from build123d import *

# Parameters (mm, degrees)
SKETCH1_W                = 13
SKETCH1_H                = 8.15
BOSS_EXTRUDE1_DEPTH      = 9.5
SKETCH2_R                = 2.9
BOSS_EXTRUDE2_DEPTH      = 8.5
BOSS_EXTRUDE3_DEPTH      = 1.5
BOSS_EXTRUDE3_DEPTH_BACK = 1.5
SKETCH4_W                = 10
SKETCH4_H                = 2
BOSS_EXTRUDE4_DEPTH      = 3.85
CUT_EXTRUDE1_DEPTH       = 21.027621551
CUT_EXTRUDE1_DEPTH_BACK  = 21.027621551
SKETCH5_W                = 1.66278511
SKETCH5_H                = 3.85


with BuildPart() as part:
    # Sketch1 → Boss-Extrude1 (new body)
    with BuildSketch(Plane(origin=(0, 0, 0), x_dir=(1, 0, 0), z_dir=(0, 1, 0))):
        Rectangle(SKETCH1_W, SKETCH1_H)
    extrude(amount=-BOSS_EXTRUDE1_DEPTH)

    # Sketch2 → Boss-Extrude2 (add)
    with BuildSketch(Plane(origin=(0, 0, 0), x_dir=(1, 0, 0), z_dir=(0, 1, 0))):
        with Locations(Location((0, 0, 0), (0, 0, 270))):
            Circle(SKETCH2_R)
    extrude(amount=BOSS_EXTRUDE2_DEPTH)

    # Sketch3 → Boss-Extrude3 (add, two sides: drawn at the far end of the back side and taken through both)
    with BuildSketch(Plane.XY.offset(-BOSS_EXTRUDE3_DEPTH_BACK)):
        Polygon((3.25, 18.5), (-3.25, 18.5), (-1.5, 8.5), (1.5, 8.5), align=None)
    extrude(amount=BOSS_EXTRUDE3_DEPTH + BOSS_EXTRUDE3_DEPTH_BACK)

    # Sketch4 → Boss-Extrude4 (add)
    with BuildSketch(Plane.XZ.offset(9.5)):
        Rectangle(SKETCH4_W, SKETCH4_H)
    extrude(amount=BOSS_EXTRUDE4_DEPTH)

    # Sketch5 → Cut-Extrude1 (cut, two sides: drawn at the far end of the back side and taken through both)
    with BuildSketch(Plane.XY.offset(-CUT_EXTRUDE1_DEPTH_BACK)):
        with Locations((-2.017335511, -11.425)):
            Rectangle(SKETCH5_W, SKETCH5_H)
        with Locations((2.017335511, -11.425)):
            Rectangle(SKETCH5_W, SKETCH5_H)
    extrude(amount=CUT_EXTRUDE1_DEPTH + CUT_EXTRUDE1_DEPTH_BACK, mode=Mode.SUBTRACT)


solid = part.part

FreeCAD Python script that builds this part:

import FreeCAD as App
import Part
import Sketcher

V = App.Vector
Q = App.Units.Quantity


def add_polygon(sketch, points):
    """Adds a closed chain of lines whose ends are joined by coincident constraints."""
    first, n = sketch.GeometryCount, len(points)
    for a, b in zip(points, points[1:] + points[:1]):
        sketch.addGeometry(Part.LineSegment(App.Vector(*a, 0), App.Vector(*b, 0)), False)
    for i in range(n):
        sketch.addConstraint(Sketcher.Constraint("Coincident", first + i, 2, first + (i + 1) % n, 1))

doc = App.newDocument("Part")
body = doc.addObject("PartDesign::Body", "Body")

# Sketch on XZ plane
sketch1 = doc.addObject("Sketcher::SketchObject", "Sketch")
body.addObject(sketch1)
sketch1.AttachmentSupport = (doc.XZ_Plane, [""])
sketch1.MapMode = "FlatFace"
add_polygon(sketch1, [(-6, -4), (-6, 4), (6, 4), (6, -4)])  # lines 0-3
sketch1.addConstraint([
    Sketcher.Constraint("Vertical", 0),
    Sketcher.Constraint("Horizontal", 1),
    Sketcher.Constraint("Vertical", 2),
    Sketcher.Constraint("Horizontal", 3),
    Sketcher.Constraint("Symmetric", 0, 2, 2, 2, -1, 1),
    Sketcher.Constraint("DistanceX", 1, 1, 1, 2, Q("13 mm")),
    Sketcher.Constraint("DistanceY", 0, 1, 0, 2, Q("8.15 mm")),
])
pad1 = doc.addObject("PartDesign::Pad", "Pad")
body.addObject(pad1)
pad1.Profile = sketch1
pad1.Length = 9.5

# Sketch on XZ plane
sketch2 = doc.addObject("Sketcher::SketchObject", "Sketch001")
body.addObject(sketch2)
sketch2.AttachmentSupport = (doc.XZ_Plane, [""])
sketch2.MapMode = "FlatFace"
sketch2.addGeometry(Part.Circle(V(0, 0, 0), V(0, 0, 1), 2.9), False)
sketch2.addConstraint([
    Sketcher.Constraint("Coincident", 0, 3, -1, 1),
    Sketcher.Constraint("Diameter", 0, Q("5.8 mm")),
])
pad2 = doc.addObject("PartDesign::Pad", "Pad001")
body.addObject(pad2)
pad2.Profile = sketch2
pad2.Length = 8.5
pad2.Reversed = True

# Sketch on XY plane
sketch3 = doc.addObject("Sketcher::SketchObject", "Sketch002")
body.addObject(sketch3)
sketch3.AttachmentSupport = (doc.XY_Plane, [""])
sketch3.MapMode = "FlatFace"
add_polygon(sketch3, [(3.2, 18.5), (-3.2, 18.5), (-1.5, 8.5), (1.5, 8.5)])  # lines 0-3
sketch3.addConstraint([
    Sketcher.Constraint("Horizontal", 0),
    Sketcher.Constraint("Horizontal", 2),
    Sketcher.Constraint("Equal", 1, 3),
    Sketcher.Constraint("DistanceX", 2, 1, 2, 2, Q("3 mm")),
    Sketcher.Constraint("DistanceX", 0, 2, 0, 1, Q("6.5 mm")),
    Sketcher.Constraint("DistanceY", 1, 2, 0, 2, Q("10 mm")),
    Sketcher.Constraint("DistanceY", -1, 1, 0, 2, Q("18.5 mm")),
    Sketcher.Constraint("DistanceX", 1, 2, -1, 1, Q("1.5 mm")),
])
pad3 = doc.addObject("PartDesign::Pad", "Pad002")
body.addObject(pad3)
pad3.Profile = sketch3
pad3.Type = "TwoLengths"
pad3.Length = 1.5
pad3.Length2 = 1.5

# Sketch on XZ plane
sketch4 = doc.addObject("Sketcher::SketchObject", "Sketch003")
body.addObject(sketch4)
sketch4.AttachmentSupport = (doc.XZ_Plane, [""])
sketch4.MapMode = "FlatFace"
sketch4.AttachmentOffset = App.Placement(V(0, 0, 9.5), App.Rotation())
add_polygon(sketch4, [(-5, 1), (-5, -1), (5, -1), (5, 1)])  # lines 0-3
sketch4.addConstraint([
    Sketcher.Constraint("Vertical", 0),
    Sketcher.Constraint("Horizontal", 1),
    Sketcher.Constraint("Vertical", 2),
    Sketcher.Constraint("Horizontal", 3),
    Sketcher.Constraint("Symmetric", 0, 2, 2, 2, -1, 1),
    Sketcher.Constraint("DistanceX", 1, 1, 1, 2, Q("10 mm")),
    Sketcher.Constraint("DistanceY", 0, 2, 0, 1, Q("2 mm")),
])
pad4 = doc.addObject("PartDesign::Pad", "Pad003")
body.addObject(pad4)
pad4.Profile = sketch4
pad4.Length = 3.85

# Sketch on XY plane
sketch5 = doc.addObject("Sketcher::SketchObject", "Sketch004")
body.addObject(sketch5)
sketch5.AttachmentSupport = (doc.XY_Plane, [""])
sketch5.MapMode = "FlatFace"
add_polygon(sketch5, [(-2.8, -9.5), (-2.8, -13.3), (-1.2, -13.3), (-1.2, -9.5)])  # lines 0-3
add_polygon(sketch5, [(1.2, -9.5), (1.2, -13.3), (2.8, -13.3), (2.8, -9.5)])  # lines 4-7
sketch5.addConstraint([
    Sketcher.Constraint("Vertical", 0),
    Sketcher.Constraint("Horizontal", 1),
    Sketcher.Constraint("Vertical", 2),
    Sketcher.Constraint("Horizontal", 3),
    Sketcher.Constraint("Vertical", 4),
    Sketcher.Constraint("Horizontal", 5),
    Sketcher.Constraint("Vertical", 6),
    Sketcher.Constraint("Horizontal", 7),
    Sketcher.Constraint("Symmetric", 1, 2, 4, 2, -2),
    Sketcher.Constraint("Symmetric", 3, 2, 6, 2, -2),
    Sketcher.Constraint("DistanceY", 0, 2, 0, 1, Q("3.85 mm")),
    Sketcher.Constraint("DistanceY", 2, 2, -1, 1, Q("9.5 mm")),
    Sketcher.Constraint("DistanceX", 1, 1, 1, 2, Q("1.662785 mm")),
    Sketcher.Constraint("DistanceX", 0, 2, -1, 1, Q("2.848728 mm")),
])
pocket1 = doc.addObject("PartDesign::Pocket", "Pocket")
body.addObject(pocket1)
pocket1.Profile = sketch5
pocket1.Type = "ThroughAll"
pocket1.Midplane = True

doc.recompute()
